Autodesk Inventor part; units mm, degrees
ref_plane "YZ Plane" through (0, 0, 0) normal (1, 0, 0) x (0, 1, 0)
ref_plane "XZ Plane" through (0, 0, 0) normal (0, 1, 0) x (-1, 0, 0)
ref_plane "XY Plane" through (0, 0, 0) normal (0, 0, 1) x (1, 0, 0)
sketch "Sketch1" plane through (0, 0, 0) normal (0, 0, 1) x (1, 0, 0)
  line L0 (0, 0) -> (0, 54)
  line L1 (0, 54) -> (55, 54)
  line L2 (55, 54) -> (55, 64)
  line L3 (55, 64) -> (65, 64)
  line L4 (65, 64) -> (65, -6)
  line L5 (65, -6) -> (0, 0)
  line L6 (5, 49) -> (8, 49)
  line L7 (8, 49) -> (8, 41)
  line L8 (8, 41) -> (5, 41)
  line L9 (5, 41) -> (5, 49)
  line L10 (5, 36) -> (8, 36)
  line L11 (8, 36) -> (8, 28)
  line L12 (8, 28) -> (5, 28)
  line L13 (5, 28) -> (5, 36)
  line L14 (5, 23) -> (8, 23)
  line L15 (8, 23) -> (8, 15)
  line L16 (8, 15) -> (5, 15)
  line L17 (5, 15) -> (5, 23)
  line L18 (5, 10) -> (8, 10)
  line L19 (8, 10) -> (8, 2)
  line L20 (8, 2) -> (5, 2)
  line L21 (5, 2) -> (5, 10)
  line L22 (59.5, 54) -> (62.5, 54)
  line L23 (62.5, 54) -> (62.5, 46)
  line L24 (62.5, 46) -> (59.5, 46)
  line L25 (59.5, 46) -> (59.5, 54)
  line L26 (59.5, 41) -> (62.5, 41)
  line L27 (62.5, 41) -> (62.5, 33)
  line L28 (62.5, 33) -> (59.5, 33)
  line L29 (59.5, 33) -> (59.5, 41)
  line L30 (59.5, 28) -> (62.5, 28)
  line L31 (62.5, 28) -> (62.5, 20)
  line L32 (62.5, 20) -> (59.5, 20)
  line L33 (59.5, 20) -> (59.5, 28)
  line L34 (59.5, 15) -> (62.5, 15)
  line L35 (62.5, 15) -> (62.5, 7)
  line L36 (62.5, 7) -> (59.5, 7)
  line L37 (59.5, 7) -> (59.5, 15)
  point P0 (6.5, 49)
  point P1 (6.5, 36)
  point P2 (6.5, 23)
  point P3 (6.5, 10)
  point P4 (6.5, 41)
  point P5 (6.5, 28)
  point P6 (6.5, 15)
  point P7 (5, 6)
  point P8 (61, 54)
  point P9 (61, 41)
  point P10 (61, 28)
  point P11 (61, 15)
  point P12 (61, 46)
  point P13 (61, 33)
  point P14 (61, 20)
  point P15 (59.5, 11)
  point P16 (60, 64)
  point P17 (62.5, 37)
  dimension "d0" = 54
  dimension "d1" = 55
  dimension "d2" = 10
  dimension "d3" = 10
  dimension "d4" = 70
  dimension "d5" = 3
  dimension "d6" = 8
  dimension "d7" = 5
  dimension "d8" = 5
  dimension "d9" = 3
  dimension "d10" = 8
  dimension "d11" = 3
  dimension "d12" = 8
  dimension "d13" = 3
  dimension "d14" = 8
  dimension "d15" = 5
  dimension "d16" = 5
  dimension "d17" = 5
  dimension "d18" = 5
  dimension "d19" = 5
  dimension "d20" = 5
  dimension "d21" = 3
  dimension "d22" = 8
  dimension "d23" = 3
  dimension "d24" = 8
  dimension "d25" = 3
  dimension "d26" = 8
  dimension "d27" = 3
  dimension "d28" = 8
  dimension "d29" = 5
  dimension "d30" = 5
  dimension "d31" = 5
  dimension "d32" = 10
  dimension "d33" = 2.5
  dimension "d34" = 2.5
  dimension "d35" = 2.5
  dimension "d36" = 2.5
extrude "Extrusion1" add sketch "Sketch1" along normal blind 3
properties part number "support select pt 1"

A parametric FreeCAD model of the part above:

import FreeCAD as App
import Part
import Sketcher
from FreeCAD import Vector
Q = App.Units.Quantity

doc = App.newDocument("Part")
body = doc.addObject("PartDesign::Body", "Body")

sketch1 = body.newObject("Sketcher::SketchObject", "Sketch")
sketch1.AttachmentSupport = (doc.getObject("XY_Plane"), [""])
sketch1.MapMode = "FlatFace"
sketch1.addGeometry(Part.LineSegment(Vector(0, 54, 0), Vector(0, 0, 0)), False)
sketch1.addGeometry(Part.LineSegment(Vector(0, 0, 0), Vector(65, -6, 0)), False)
sketch1.addGeometry(Part.LineSegment(Vector(65, -6, 0), Vector(65, 64, 0)), False)
sketch1.addGeometry(Part.LineSegment(Vector(65, 64, 0), Vector(55, 64, 0)), False)
sketch1.addGeometry(Part.LineSegment(Vector(55, 64, 0), Vector(55, 54, 0)), False)
sketch1.addGeometry(Part.LineSegment(Vector(55, 54, 0), Vector(0, 54, 0)), False)
sketch1.addGeometry(Part.LineSegment(Vector(5, 2, 0), Vector(5, 10, 0)), False)
sketch1.addGeometry(Part.LineSegment(Vector(5, 10, 0), Vector(8, 10, 0)), False)
sketch1.addGeometry(Part.LineSegment(Vector(8, 10, 0), Vector(8, 2, 0)), False)
sketch1.addGeometry(Part.LineSegment(Vector(8, 2, 0), Vector(5, 2, 0)), False)
sketch1.addGeometry(Part.LineSegment(Vector(5, 15, 0), Vector(5, 23, 0)), False)
sketch1.addGeometry(Part.LineSegment(Vector(5, 23, 0), Vector(8, 23, 0)), False)
sketch1.addGeometry(Part.LineSegment(Vector(8, 23, 0), Vector(8, 15, 0)), False)
sketch1.addGeometry(Part.LineSegment(Vector(8, 15, 0), Vector(5, 15, 0)), False)
sketch1.addGeometry(Part.LineSegment(Vector(59.5, 7, 0), Vector(59.5, 15, 0)), False)
sketch1.addGeometry(Part.LineSegment(Vector(59.5, 15, 0), Vector(62.5, 15, 0)), False)
sketch1.addGeometry(Part.LineSegment(Vector(62.5, 15, 0), Vector(62.5, 7, 0)), False)
sketch1.addGeometry(Part.LineSegment(Vector(62.5, 7, 0), Vector(59.5, 7, 0)), False)
sketch1.addGeometry(Part.LineSegment(Vector(59.5, 20, 0), Vector(59.5, 28, 0)), False)
sketch1.addGeometry(Part.LineSegment(Vector(59.5, 28, 0), Vector(62.5, 28, 0)), False)
sketch1.addGeometry(Part.LineSegment(Vector(62.5, 28, 0), Vector(62.5, 20, 0)), False)
sketch1.addGeometry(Part.LineSegment(Vector(62.5, 20, 0), Vector(59.5, 20, 0)), False)
sketch1.addGeometry(Part.LineSegment(Vector(5, 28, 0), Vector(5, 36, 0)), False)
sketch1.addGeometry(Part.LineSegment(Vector(5, 36, 0), Vector(8, 36, 0)), False)
sketch1.addGeometry(Part.LineSegment(Vector(8, 36, 0), Vector(8, 28, 0)), False)
sketch1.addGeometry(Part.LineSegment(Vector(8, 28, 0), Vector(5, 28, 0)), False)
sketch1.addGeometry(Part.LineSegment(Vector(5, 41, 0), Vector(5, 49, 0)), False)
sketch1.addGeometry(Part.LineSegment(Vector(5, 49, 0), Vector(8, 49, 0)), False)
sketch1.addGeometry(Part.LineSegment(Vector(8, 49, 0), Vector(8, 41, 0)), False)
sketch1.addGeometry(Part.LineSegment(Vector(8, 41, 0), Vector(5, 41, 0)), False)
sketch1.addGeometry(Part.LineSegment(Vector(59.5, 33, 0), Vector(59.5, 41, 0)), False)
sketch1.addGeometry(Part.LineSegment(Vector(59.5, 41, 0), Vector(62.5, 41, 0)), False)
sketch1.addGeometry(Part.LineSegment(Vector(62.5, 41, 0), Vector(62.5, 33, 0)), False)
sketch1.addGeometry(Part.LineSegment(Vector(62.5, 33, 0), Vector(59.5, 33, 0)), False)
sketch1.addGeometry(Part.LineSegment(Vector(59.5, 46, 0), Vector(59.5, 54, 0)), False)
sketch1.addGeometry(Part.LineSegment(Vector(59.5, 54, 0), Vector(62.5, 54, 0)), False)
sketch1.addGeometry(Part.LineSegment(Vector(62.5, 54, 0), Vector(62.5, 46, 0)), False)
sketch1.addGeometry(Part.LineSegment(Vector(62.5, 46, 0), Vector(59.5, 46, 0)), False)
sketch1.addConstraint(Sketcher.Constraint("Coincident", 0, 2, 1, 1))
sketch1.addConstraint(Sketcher.Constraint("Coincident", 1, 2, 2, 1))
sketch1.addConstraint(Sketcher.Constraint("Coincident", 2, 2, 3, 1))
sketch1.addConstraint(Sketcher.Constraint("Coincident", 3, 2, 4, 1))
sketch1.addConstraint(Sketcher.Constraint("Coincident", 4, 2, 5, 1))
sketch1.addConstraint(Sketcher.Constraint("Coincident", 5, 2, 0, 1))
sketch1.addConstraint(Sketcher.Constraint("Coincident", 6, 2, 7, 1))
sketch1.addConstraint(Sketcher.Constraint("Coincident", 7, 2, 8, 1))
sketch1.addConstraint(Sketcher.Constraint("Coincident", 8, 2, 9, 1))
sketch1.addConstraint(Sketcher.Constraint("Coincident", 9, 2, 6, 1))
sketch1.addConstraint(Sketcher.Constraint("Coincident", 10, 2, 11, 1))
sketch1.addConstraint(Sketcher.Constraint("Coincident", 11, 2, 12, 1))
sketch1.addConstraint(Sketcher.Constraint("Coincident", 12, 2, 13, 1))
sketch1.addConstraint(Sketcher.Constraint("Coincident", 13, 2, 10, 1))
sketch1.addConstraint(Sketcher.Constraint("Coincident", 14, 2, 15, 1))
sketch1.addConstraint(Sketcher.Constraint("Coincident", 15, 2, 16, 1))
sketch1.addConstraint(Sketcher.Constraint("Coincident", 16, 2, 17, 1))
sketch1.addConstraint(Sketcher.Constraint("Coincident", 17, 2, 14, 1))
sketch1.addConstraint(Sketcher.Constraint("Coincident", 18, 2, 19, 1))
sketch1.addConstraint(Sketcher.Constraint("Coincident", 19, 2, 20, 1))
sketch1.addConstraint(Sketcher.Constraint("Coincident", 20, 2, 21, 1))
sketch1.addConstraint(Sketcher.Constraint("Coincident", 21, 2, 18, 1))
sketch1.addConstraint(Sketcher.Constraint("Coincident", 22, 2, 23, 1))
sketch1.addConstraint(Sketcher.Constraint("Coincident", 23, 2, 24, 1))
sketch1.addConstraint(Sketcher.Constraint("Coincident", 24, 2, 25, 1))
sketch1.addConstraint(Sketcher.Constraint("Coincident", 25, 2, 22, 1))
sketch1.addConstraint(Sketcher.Constraint("Coincident", 26, 2, 27, 1))
sketch1.addConstraint(Sketcher.Constraint("Coincident", 27, 2, 28, 1))
sketch1.addConstraint(Sketcher.Constraint("Coincident", 28, 2, 29, 1))
sketch1.addConstraint(Sketcher.Constraint("Coincident", 29, 2, 26, 1))
sketch1.addConstraint(Sketcher.Constraint("Coincident", 30, 2, 31, 1))
sketch1.addConstraint(Sketcher.Constraint("Coincident", 31, 2, 32, 1))
sketch1.addConstraint(Sketcher.Constraint("Coincident", 32, 2, 33, 1))
sketch1.addConstraint(Sketcher.Constraint("Coincident", 33, 2, 30, 1))
sketch1.addConstraint(Sketcher.Constraint("Coincident", 34, 2, 35, 1))
sketch1.addConstraint(Sketcher.Constraint("Coincident", 35, 2, 36, 1))
sketch1.addConstraint(Sketcher.Constraint("Coincident", 36, 2, 37, 1))
sketch1.addConstraint(Sketcher.Constraint("Coincident", 37, 2, 34, 1))
sketch1.addConstraint(Sketcher.Constraint("Vertical", 0))
sketch1.addConstraint(Sketcher.Constraint("Vertical", 2))
sketch1.addConstraint(Sketcher.Constraint("Horizontal", 3))
sketch1.addConstraint(Sketcher.Constraint("Vertical", 4))
sketch1.addConstraint(Sketcher.Constraint("Horizontal", 5))
sketch1.addConstraint(Sketcher.Constraint("Vertical", 6))
sketch1.addConstraint(Sketcher.Constraint("Horizontal", 7))
sketch1.addConstraint(Sketcher.Constraint("Vertical", 8))
sketch1.addConstraint(Sketcher.Constraint("Horizontal", 9))
sketch1.addConstraint(Sketcher.Constraint("Vertical", 10))
sketch1.addConstraint(Sketcher.Constraint("Horizontal", 11))
sketch1.addConstraint(Sketcher.Constraint("Vertical", 12))
sketch1.addConstraint(Sketcher.Constraint("Horizontal", 13))
sketch1.addConstraint(Sketcher.Constraint("Vertical", 14))
sketch1.addConstraint(Sketcher.Constraint("Horizontal", 15))
sketch1.addConstraint(Sketcher.Constraint("Vertical", 16))
sketch1.addConstraint(Sketcher.Constraint("Horizontal", 17))
sketch1.addConstraint(Sketcher.Constraint("Vertical", 18))
sketch1.addConstraint(Sketcher.Constraint("Horizontal", 19))
sketch1.addConstraint(Sketcher.Constraint("Vertical", 20))
sketch1.addConstraint(Sketcher.Constraint("Horizontal", 21))
sketch1.addConstraint(Sketcher.Constraint("Vertical", 22))
sketch1.addConstraint(Sketcher.Constraint("Horizontal", 23))
sketch1.addConstraint(Sketcher.Constraint("Vertical", 24))
sketch1.addConstraint(Sketcher.Constraint("Horizontal", 25))
sketch1.addConstraint(Sketcher.Constraint("Vertical", 26))
sketch1.addConstraint(Sketcher.Constraint("Horizontal", 27))
sketch1.addConstraint(Sketcher.Constraint("Vertical", 28))
sketch1.addConstraint(Sketcher.Constraint("Horizontal", 29))
sketch1.addConstraint(Sketcher.Constraint("Vertical", 30))
sketch1.addConstraint(Sketcher.Constraint("Horizontal", 31))
sketch1.addConstraint(Sketcher.Constraint("Vertical", 32))
sketch1.addConstraint(Sketcher.Constraint("Horizontal", 33))
sketch1.addConstraint(Sketcher.Constraint("Vertical", 34))
sketch1.addConstraint(Sketcher.Constraint("Horizontal", 35))
sketch1.addConstraint(Sketcher.Constraint("Vertical", 36))
sketch1.addConstraint(Sketcher.Constraint("Horizontal", 37))
sketch1.addConstraint(Sketcher.Constraint("Coincident", 0, 2, -1, 1))
sketch1.addConstraint(Sketcher.Constraint("Horizontal", 13, 2, 14, 2))
sketch1.addConstraint(Sketcher.Constraint("Horizontal", 19, 2, 24, 2))
sketch1.addConstraint(Sketcher.Constraint("Horizontal", 29, 2, 30, 2))
sketch1.addConstraint(Sketcher.Constraint("Horizontal", 5, 2, 34, 2))
sketch1.addConstraint(Sketcher.Constraint("Vertical", 9, 2, 10, 2))
sketch1.addConstraint(Sketcher.Constraint("Vertical", 8, 2, 11, 2))
sketch1.addConstraint(Sketcher.Constraint("Vertical", 17, 2, 18, 2))
sketch1.addConstraint(Sketcher.Constraint("Vertical", 16, 2, 19, 2))
sketch1.addConstraint(Sketcher.Constraint("Vertical", 13, 2, 22, 2))
sketch1.addConstraint(Sketcher.Constraint("Vertical", 12, 2, 23, 2))
sketch1.addConstraint(Sketcher.Constraint("Vertical", 25, 2, 26, 2))
sketch1.addConstraint(Sketcher.Constraint("Vertical", 24, 2, 27, 2))
sketch1.addConstraint(Sketcher.Constraint("Vertical", 21, 2, 30, 2))
sketch1.addConstraint(Sketcher.Constraint("Vertical", 20, 2, 31, 2))
sketch1.addConstraint(Sketcher.Constraint("Vertical", 33, 2, 34, 2))
sketch1.addConstraint(Sketcher.Constraint("Vertical", 32, 2, 35, 2))
sketch1.addConstraint(Sketcher.Constraint("Equal", 13, 15))
sketch1.addConstraint(Sketcher.Constraint("Equal", 3, 4))
sketch1.addConstraint(Sketcher.Constraint("Equal", 8, 10))
sketch1.addConstraint(Sketcher.Constraint("Equal", 12, 14))
sketch1.addConstraint(Sketcher.Constraint("Equal", 16, 18))
sketch1.addConstraint(Sketcher.Constraint("Equal", 20, 22))
sketch1.addConstraint(Sketcher.Constraint("Equal", 24, 26))
sketch1.addConstraint(Sketcher.Constraint("Equal", 28, 30))
sketch1.addConstraint(Sketcher.Constraint("Equal", 32, 34))
sketch1.addConstraint(Sketcher.Constraint("DistanceX", 3, 2, 3, 1, Q("10 mm")))
sketch1.addConstraint(Sketcher.Constraint("DistanceX", 5, 2, 5, 1, Q("55 mm")))
sketch1.addConstraint(Sketcher.Constraint("DistanceX", 7, 1, 7, 2, Q("3 mm")))
sketch1.addConstraint(Sketcher.Constraint("DistanceY", 0, 2, 0, 1, Q("54 mm")))
sketch1.addConstraint(Sketcher.Constraint("DistanceY", 2, 1, 2, 2, Q("70 mm")))
sketch1.addConstraint(Sketcher.Constraint("DistanceY", 6, 1, 6, 2, Q("8 mm")))
sketch1.addConstraint(Sketcher.Constraint("DistanceX", -1, 1, 6, 2, Q("5 mm")))
sketch1.addConstraint(Sketcher.Constraint("DistanceY", -1, 1, 6, 2, Q("10 mm")))
sketch1.addConstraint(Sketcher.Constraint("DistanceY", 7, 2, 12, 2, Q("5 mm")))
sketch1.addConstraint(Sketcher.Constraint("DistanceY", 15, 2, 20, 2, Q("5 mm")))
sketch1.addConstraint(Sketcher.Constraint("DistanceY", 26, 2, 5, 2, Q("5 mm")))
sketch1.addConstraint(Sketcher.Constraint("DistanceX", 15, 2, 1, 2, Q("2.5 mm")))
pad1 = body.newObject("PartDesign::Pad", "Pad")
pad1.Profile = sketch1
pad1.Length = 3

doc.recompute()
